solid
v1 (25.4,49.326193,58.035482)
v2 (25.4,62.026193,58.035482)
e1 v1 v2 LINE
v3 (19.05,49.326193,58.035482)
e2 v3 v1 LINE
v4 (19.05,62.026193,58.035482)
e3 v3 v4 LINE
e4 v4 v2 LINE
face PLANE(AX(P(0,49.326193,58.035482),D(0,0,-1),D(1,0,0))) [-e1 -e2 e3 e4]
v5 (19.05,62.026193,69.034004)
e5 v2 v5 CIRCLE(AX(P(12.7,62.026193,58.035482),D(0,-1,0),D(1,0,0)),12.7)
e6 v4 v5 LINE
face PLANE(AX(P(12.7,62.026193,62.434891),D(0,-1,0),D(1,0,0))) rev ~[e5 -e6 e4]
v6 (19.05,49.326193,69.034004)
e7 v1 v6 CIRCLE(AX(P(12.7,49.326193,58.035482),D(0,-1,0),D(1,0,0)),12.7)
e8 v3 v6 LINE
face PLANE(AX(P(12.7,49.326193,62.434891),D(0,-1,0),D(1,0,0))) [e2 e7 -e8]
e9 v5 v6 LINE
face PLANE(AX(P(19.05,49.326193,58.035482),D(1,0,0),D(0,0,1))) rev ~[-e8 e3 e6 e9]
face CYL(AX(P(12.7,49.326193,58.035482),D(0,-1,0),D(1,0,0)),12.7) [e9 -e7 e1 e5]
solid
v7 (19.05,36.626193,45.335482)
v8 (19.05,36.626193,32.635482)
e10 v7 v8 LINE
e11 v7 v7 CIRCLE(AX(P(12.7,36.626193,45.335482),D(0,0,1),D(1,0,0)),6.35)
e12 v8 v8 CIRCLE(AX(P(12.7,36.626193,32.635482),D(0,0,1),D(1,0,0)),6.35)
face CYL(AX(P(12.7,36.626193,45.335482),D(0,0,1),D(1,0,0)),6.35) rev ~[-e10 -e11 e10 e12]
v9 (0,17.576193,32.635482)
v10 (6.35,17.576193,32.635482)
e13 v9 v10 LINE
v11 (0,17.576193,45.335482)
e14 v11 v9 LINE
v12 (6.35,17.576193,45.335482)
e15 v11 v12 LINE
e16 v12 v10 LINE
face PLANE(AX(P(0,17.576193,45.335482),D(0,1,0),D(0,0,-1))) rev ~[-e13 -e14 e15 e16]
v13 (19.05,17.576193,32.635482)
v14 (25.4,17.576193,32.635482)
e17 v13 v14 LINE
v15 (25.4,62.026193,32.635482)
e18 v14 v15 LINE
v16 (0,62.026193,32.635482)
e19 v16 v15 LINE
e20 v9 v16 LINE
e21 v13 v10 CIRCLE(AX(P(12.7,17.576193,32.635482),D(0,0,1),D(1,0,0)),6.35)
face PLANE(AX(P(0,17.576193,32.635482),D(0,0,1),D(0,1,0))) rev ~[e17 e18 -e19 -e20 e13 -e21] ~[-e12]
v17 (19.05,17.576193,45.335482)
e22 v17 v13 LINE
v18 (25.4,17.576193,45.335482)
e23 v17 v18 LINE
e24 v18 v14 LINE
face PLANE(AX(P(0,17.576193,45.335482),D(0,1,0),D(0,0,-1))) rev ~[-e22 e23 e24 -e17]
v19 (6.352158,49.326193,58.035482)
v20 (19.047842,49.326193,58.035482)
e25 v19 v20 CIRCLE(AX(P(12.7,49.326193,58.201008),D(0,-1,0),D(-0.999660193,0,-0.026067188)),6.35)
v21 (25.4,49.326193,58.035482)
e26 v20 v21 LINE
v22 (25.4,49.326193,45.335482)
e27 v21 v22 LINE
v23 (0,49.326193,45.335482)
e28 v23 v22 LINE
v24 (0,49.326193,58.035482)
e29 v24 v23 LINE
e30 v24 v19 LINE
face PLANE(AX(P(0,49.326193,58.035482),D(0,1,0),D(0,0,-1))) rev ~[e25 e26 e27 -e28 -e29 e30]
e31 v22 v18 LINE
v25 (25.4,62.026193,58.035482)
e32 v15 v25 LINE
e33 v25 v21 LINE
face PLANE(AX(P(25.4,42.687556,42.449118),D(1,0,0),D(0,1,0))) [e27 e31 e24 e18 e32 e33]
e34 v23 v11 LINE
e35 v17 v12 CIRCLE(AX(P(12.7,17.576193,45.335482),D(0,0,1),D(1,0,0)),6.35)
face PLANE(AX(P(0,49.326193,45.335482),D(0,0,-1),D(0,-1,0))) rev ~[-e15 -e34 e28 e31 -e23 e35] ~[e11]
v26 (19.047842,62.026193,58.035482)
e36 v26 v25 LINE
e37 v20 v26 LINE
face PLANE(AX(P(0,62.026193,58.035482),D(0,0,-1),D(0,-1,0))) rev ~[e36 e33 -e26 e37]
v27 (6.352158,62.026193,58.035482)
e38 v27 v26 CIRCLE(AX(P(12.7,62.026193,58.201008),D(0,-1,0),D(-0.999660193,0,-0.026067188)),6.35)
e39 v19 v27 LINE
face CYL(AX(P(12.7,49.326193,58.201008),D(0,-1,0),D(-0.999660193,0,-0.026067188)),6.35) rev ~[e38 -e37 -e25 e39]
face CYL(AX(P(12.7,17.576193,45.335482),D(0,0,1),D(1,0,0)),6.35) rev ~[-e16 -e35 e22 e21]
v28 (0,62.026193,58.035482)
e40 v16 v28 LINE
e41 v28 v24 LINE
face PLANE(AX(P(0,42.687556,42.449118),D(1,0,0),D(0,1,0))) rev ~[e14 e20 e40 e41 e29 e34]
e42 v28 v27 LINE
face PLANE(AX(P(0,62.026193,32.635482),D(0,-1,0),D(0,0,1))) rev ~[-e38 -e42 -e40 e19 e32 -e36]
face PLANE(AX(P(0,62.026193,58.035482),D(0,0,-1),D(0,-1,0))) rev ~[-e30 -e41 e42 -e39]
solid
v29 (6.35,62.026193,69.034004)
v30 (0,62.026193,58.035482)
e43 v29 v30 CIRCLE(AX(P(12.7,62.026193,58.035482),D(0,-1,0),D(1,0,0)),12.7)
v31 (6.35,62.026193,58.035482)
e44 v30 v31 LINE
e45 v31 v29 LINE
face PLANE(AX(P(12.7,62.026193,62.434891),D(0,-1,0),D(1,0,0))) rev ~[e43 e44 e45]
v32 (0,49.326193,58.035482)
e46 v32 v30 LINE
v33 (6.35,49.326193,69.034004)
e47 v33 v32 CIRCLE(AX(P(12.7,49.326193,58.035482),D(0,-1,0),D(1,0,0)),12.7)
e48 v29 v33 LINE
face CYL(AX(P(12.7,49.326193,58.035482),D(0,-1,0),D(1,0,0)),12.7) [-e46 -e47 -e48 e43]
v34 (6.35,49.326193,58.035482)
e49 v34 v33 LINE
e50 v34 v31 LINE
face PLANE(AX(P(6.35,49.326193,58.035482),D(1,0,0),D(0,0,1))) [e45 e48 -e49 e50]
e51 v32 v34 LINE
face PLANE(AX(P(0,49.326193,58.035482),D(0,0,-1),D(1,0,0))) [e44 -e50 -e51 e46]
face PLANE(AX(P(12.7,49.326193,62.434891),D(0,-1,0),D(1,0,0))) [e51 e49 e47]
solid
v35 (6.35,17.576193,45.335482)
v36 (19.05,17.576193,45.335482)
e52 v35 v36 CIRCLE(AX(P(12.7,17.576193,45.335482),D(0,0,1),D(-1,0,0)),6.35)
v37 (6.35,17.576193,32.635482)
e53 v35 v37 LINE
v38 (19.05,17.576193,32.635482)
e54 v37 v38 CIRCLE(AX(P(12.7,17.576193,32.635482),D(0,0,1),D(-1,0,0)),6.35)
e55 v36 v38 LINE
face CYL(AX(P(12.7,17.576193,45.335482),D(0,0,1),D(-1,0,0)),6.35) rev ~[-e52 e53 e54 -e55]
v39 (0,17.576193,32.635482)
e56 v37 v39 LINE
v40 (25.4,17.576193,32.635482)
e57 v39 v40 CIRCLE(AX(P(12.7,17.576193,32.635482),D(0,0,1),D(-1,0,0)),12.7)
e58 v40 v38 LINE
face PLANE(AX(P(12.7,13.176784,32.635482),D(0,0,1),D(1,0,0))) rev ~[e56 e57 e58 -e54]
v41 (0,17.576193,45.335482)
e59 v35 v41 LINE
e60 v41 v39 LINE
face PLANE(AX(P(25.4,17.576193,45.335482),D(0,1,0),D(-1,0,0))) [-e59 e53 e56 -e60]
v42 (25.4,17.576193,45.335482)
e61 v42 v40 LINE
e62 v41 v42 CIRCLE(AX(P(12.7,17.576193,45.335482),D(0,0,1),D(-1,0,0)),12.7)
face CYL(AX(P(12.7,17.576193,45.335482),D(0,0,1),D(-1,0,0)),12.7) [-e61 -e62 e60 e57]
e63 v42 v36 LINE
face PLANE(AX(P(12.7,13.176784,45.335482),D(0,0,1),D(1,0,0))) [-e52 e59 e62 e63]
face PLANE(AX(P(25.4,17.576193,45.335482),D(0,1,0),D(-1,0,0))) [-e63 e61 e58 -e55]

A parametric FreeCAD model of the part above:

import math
import FreeCAD as App
import Part
import Sketcher

V = App.Vector
Q = App.Units.Quantity


def add_polygon(sketch, points):
    """Adds a closed chain of lines whose ends are joined by coincident constraints."""
    first, n = sketch.GeometryCount, len(points)
    for a, b in zip(points, points[1:] + points[:1]):
        sketch.addGeometry(Part.LineSegment(App.Vector(*a, 0), App.Vector(*b, 0)), False)
    for i in range(n):
        sketch.addConstraint(Sketcher.Constraint("Coincident", first + i, 2, first + (i + 1) % n, 1))

doc = App.newDocument("Part")
body = doc.addObject("PartDesign::Body", "Body")

sketch1 = body.newObject("Sketcher::SketchObject", "Sketch")
sketch1.AttachmentSupport = (doc.getObject("YZ_Plane"), [""])
sketch1.MapMode = "FlatFace"
add_polygon(sketch1, [(62.026193, 32.635482), (62.026193, 58.035482), (49.326193, 58.035482), (49.326193, 45.335482), (17.576193, 45.335482), (17.576193, 32.635482)])
sketch1.addConstraint(Sketcher.Constraint("Vertical", 0))
sketch1.addConstraint(Sketcher.Constraint("Horizontal", 1))
sketch1.addConstraint(Sketcher.Constraint("Vertical", 2))
sketch1.addConstraint(Sketcher.Constraint("Horizontal", 3))
sketch1.addConstraint(Sketcher.Constraint("Vertical", 4))
sketch1.addConstraint(Sketcher.Constraint("Horizontal", 5))
sketch1.addConstraint(Sketcher.Constraint("Equal", 1, 2))
sketch1.addConstraint(Sketcher.Constraint("Equal", 2, 4))
sketch1.addConstraint(Sketcher.Constraint("DistanceY", 0, 1, 0, 2, Q("1 in")))
sketch1.addConstraint(Sketcher.Constraint("DistanceX", 3, 2, 3, 1, Q("1.25 in")))
sketch1.addConstraint(Sketcher.Constraint("DistanceY", -1, 1, 0, 2, 58.035482))
sketch1.addConstraint(Sketcher.Constraint("DistanceX", -1, 1, 0, 2, 62.026193))
pad1 = body.newObject("PartDesign::Pad", "Pad")
pad1.Profile = sketch1
pad1.Length = Q("1 in")

sketch2 = body.newObject("Sketcher::SketchObject", "Sketch001")
sketch2.AttachmentSupport = (doc.getObject("XY_Plane"), [""])
sketch2.MapMode = "FlatFace"
sketch2.AttachmentOffset = App.Placement(V(0, 0, 45.335482), App.Rotation())
sketch2.addGeometry(Part.Circle(V(12.7, 36.626193, 0), V(0, 0, 1), 6.35), False)
sketch2.addGeometry(Part.LineSegment(V(6.35, 17.576193, 0), V(19.05, 17.576193, 0)), False)
sketch2.addGeometry(Part.ArcOfCircle(Part.Circle(V(12.7, 17.576193, 0), V(0, 0, 1), 6.35), math.radians(0), math.radians(180)), False)
sketch2.addConstraint(Sketcher.Constraint("Coincident", 1, 1, 2, 2))
sketch2.addConstraint(Sketcher.Constraint("Coincident", 2, 1, 1, 2))
sketch2.addConstraint(Sketcher.Constraint("Horizontal", 1))
sketch2.addConstraint(Sketcher.Constraint("Equal", 0, 2))
sketch2.addConstraint(Sketcher.Constraint("Horizontal", 2, 3, 1, 1))
sketch2.addConstraint(Sketcher.Constraint("Vertical", 0, 3, 2, 3))
sketch2.addConstraint(Sketcher.Constraint("Diameter", 0, Q("0.5 in")))
sketch2.addConstraint(Sketcher.Constraint("DistanceX", -1, 1, 0, 3, Q("0.5 in")))
sketch2.addConstraint(Sketcher.Constraint("DistanceY", 2, 3, 0, 3, Q("0.75 in")))
sketch2.addConstraint(Sketcher.Constraint("DistanceY", -1, 1, 0, 3, 36.626193))
pocket1 = body.newObject("PartDesign::Pocket", "Pocket")
pocket1.Profile = sketch2
pocket1.Length = Q("0.5 in")

sketch3 = body.newObject("Sketcher::SketchObject", "Sketch002")
sketch3.AttachmentSupport = (doc.getObject("XZ_Plane"), [""])
sketch3.MapMode = "FlatFace"
sketch3.AttachmentOffset = App.Placement(V(0, 0, -49.326193), App.Rotation())
sketch3.addGeometry(Part.LineSegment(V(19.047842, 58.035482, 0), V(6.352158, 58.035482, 0)), False)
sketch3.addGeometry(Part.ArcOfCircle(Part.Circle(V(12.7, 58.201008, 0), V(0, 0, 1), 6.35), math.radians(-178.506291), math.radians(-1.493709)), False)
sketch3.addConstraint(Sketcher.Constraint("Coincident", 0, 1, 1, 2))
sketch3.addConstraint(Sketcher.Constraint("Coincident", 1, 1, 0, 2))
sketch3.addConstraint(Sketcher.Constraint("Horizontal", 0))
sketch3.addConstraint(Sketcher.Constraint("Radius", 1, Q("0.25 in")))
sketch3.addConstraint(Sketcher.Constraint("DistanceX", -1, 1, 1, 3, Q("0.5 in")))
sketch3.addConstraint(Sketcher.Constraint("DistanceX", 0, 2, 0, 1, 12.695684))
sketch3.addConstraint(Sketcher.Constraint("DistanceY", -1, 1, 1, 3, 58.201008))
pocket2 = body.newObject("PartDesign::Pocket", "Pocket001")
pocket2.Profile = sketch3
pocket2.Length = Q("0.5 in")

sketch4 = body.newObject("Sketcher::SketchObject", "Sketch003")
sketch4.AttachmentSupport = (doc.getObject("XZ_Plane"), [""])
sketch4.MapMode = "FlatFace"
add_polygon(sketch4, [(6.35, 64.326666), (6.35, 57.976666), (19.05, 57.976666), (19.05, 64.326666)])
sketch4.addConstraint(Sketcher.Constraint("Vertical", 0))
sketch4.addConstraint(Sketcher.Constraint("Horizontal", 1))
sketch4.addConstraint(Sketcher.Constraint("Vertical", 2))
sketch4.addConstraint(Sketcher.Constraint("Horizontal", 3))
sketch4.addConstraint(Sketcher.Constraint("DistanceX", 1, 1, 1, 2, Q("0.5 in")))
sketch4.addConstraint(Sketcher.Constraint("DistanceY", 0, 2, 0, 1, Q("0.25 in")))
sketch4.addConstraint(Sketcher.Constraint("DistanceX", -1, 1, 0, 2, Q("0.25 in")))
sketch4.addConstraint(Sketcher.Constraint("DistanceY", -1, 1, 0, 2, 57.976666))
pocket3 = body.newObject("PartDesign::Pocket", "Pocket002")
pocket3.Profile = sketch4
pocket3.Length = Q("0.5 in")

sketch5 = body.newObject("Sketcher::SketchObject", "Sketch004")
sketch5.AttachmentSupport = (doc.getObject("XZ_Plane"), [""])
sketch5.MapMode = "FlatFace"
add_polygon(sketch5, [(6.35, 64.639509), (6.35, 58.289509), (19.05, 58.289509), (19.05, 64.639509)])
sketch5.addConstraint(Sketcher.Constraint("Vertical", 0))
sketch5.addConstraint(Sketcher.Constraint("Horizontal", 1))
sketch5.addConstraint(Sketcher.Constraint("Vertical", 2))
sketch5.addConstraint(Sketcher.Constraint("Horizontal", 3))
sketch5.addConstraint(Sketcher.Constraint("DistanceX", 1, 1, 1, 2, Q("0.5 in")))
sketch5.addConstraint(Sketcher.Constraint("DistanceY", 0, 2, 0, 1, Q("0.25 in")))
sketch5.addConstraint(Sketcher.Constraint("DistanceX", -1, 1, 0, 2, Q("0.25 in")))
sketch5.addConstraint(Sketcher.Constraint("DistanceY", -1, 1, 0, 2, 58.289509))
pocket4 = body.newObject("PartDesign::Pocket", "Pocket003")
pocket4.Profile = sketch5
pocket4.Length = Q("0.5 in")
body2 = doc.addObject("PartDesign::Body", "Body001")

sketch6 = body2.newObject("Sketcher::SketchObject", "Sketch005")
sketch6.AttachmentSupport = (doc.getObject("XY_Plane001"), [""])
sketch6.MapMode = "FlatFace"
sketch6.AttachmentOffset = App.Placement(V(0, 0, 45.335482), App.Rotation())
sketch6.addGeometry(Part.LineSegment(V(25.4, 17.576193, 0), V(0, 17.576193, 0)), False)
sketch6.addGeometry(Part.ArcOfCircle(Part.Circle(V(12.7, 17.576193, 0), V(0, 0, 1), 12.7), math.radians(180), math.radians(360)), False)
sketch6.addConstraint(Sketcher.Constraint("Coincident", 0, 1, 1, 2))
sketch6.addConstraint(Sketcher.Constraint("Coincident", 1, 1, 0, 2))
sketch6.addConstraint(Sketcher.Constraint("Horizontal", 0))
sketch6.addConstraint(Sketcher.Constraint("PointOnObject", 1, 1, -2))
sketch6.addConstraint(Sketcher.Constraint("Horizontal", 1, 3, 0, 1))
sketch6.addConstraint(Sketcher.Constraint("Radius", 1, Q("0.5 in")))
sketch6.addConstraint(Sketcher.Constraint("DistanceY", -1, 1, 1, 3, 17.576193))
pad2 = body2.newObject("PartDesign::Pad", "Pad001")
pad2.Profile = sketch6
pad2.Length = Q("0.5 in")
pad2.Reversed = True

sketch7 = body2.newObject("Sketcher::SketchObject", "Sketch006")
sketch7.AttachmentSupport = (doc.getObject("XY_Plane001"), [""])
sketch7.MapMode = "FlatFace"
sketch7.AttachmentOffset = App.Placement(V(0, 0, 45.335482), App.Rotation())
sketch7.addGeometry(Part.ArcOfCircle(Part.Circle(V(12.7, 17.576193, 0), V(0, 0, 1), 6.35), math.radians(180), math.radians(360)), False)
sketch7.addGeometry(Part.LineSegment(V(19.05, 17.576193, 0), V(6.35, 17.576193, 0)), False)
sketch7.addConstraint(Sketcher.Constraint("Coincident", 0, 1, 1, 2))
sketch7.addConstraint(Sketcher.Constraint("Coincident", 1, 1, 0, 2))
sketch7.addConstraint(Sketcher.Constraint("Horizontal", 1))
sketch7.addConstraint(Sketcher.Constraint("Radius", 0, Q("0.25 in")))
sketch7.addConstraint(Sketcher.Constraint("DistanceX", -1, 1, 0, 3, Q("0.5 in")))
sketch7.addConstraint(Sketcher.Constraint("DistanceY", -1, 1, 0, 3, 17.576193))
sketch7.addConstraint(Sketcher.Constraint("DistanceY", -1, 1, 0, 1, 17.576193))
pocket5 = body2.newObject("PartDesign::Pocket", "Pocket004")
pocket5.Profile = sketch7
pocket5.Length = Q("0.5 in")
body3 = doc.addObject("PartDesign::Body", "Body002")
body3.AllowCompound = True

sketch8 = body3.newObject("Sketcher::SketchObject", "Sketch007")
sketch8.AttachmentSupport = (doc.getObject("XZ_Plane002"), [""])
sketch8.MapMode = "FlatFace"
sketch8.AttachmentOffset = App.Placement(V(0, 0, -49.326193), App.Rotation())
sketch8.addGeometry(Part.LineSegment(V(0, 58.035482, 0), V(25.4, 58.035482, 0)), False)
sketch8.addGeometry(Part.ArcOfCircle(Part.Circle(V(12.7, 58.035482, 0), V(0, 0, 1), 12.7), math.radians(0), math.radians(180)), False)
sketch8.addConstraint(Sketcher.Constraint("Coincident", 0, 1, 1, 2))
sketch8.addConstraint(Sketcher.Constraint("Coincident", 1, 1, 0, 2))
sketch8.addConstraint(Sketcher.Constraint("Horizontal", 0))
sketch8.addConstraint(Sketcher.Constraint("PointOnObject", 0, 1, -2))
sketch8.addConstraint(Sketcher.Constraint("Horizontal", 1, 3, 0, 1))
sketch8.addConstraint(Sketcher.Constraint("Radius", 1, Q("0.5 in")))
sketch8.addConstraint(Sketcher.Constraint("DistanceY", -1, 1, 1, 3, 58.035482))
pad3 = body3.newObject("PartDesign::Pad", "Pad002")
pad3.Profile = sketch8
pad3.Length = Q("0.5 in")
pad3.Reversed = True

sketch9 = body3.newObject("Sketcher::SketchObject", "Sketch008")
sketch9.AttachmentSupport = (doc.getObject("XZ_Plane002"), [""])
sketch9.MapMode = "FlatFace"
sketch9.AttachmentOffset = App.Placement(V(0, 0, -49.326193), App.Rotation())
add_polygon(sketch9, [(6.35, 72.9151), (6.35, 58.035482), (19.05, 58.035482), (19.05, 72.9151)])
sketch9.addConstraint(Sketcher.Constraint("Vertical", 0))
sketch9.addConstraint(Sketcher.Constraint("Horizontal", 1))
sketch9.addConstraint(Sketcher.Constraint("Vertical", 2))
sketch9.addConstraint(Sketcher.Constraint("Horizontal", 3))
sketch9.addConstraint(Sketcher.Constraint("DistanceX", 1, 1, 1, 2, Q("0.5 in")))
sketch9.addConstraint(Sketcher.Constraint("DistanceX", -1, 1, 0, 2, Q("0.25 in")))
sketch9.addConstraint(Sketcher.Constraint("DistanceY", -1, 1, 2, 2, 72.9151))
sketch9.addConstraint(Sketcher.Constraint("DistanceY", 0, 2, 0, 1, 14.879618))
pocket6 = body3.newObject("PartDesign::Pocket", "Pocket005")
pocket6.Profile = sketch9
pocket6.Length = Q("0.5 in")

doc.recompute()
